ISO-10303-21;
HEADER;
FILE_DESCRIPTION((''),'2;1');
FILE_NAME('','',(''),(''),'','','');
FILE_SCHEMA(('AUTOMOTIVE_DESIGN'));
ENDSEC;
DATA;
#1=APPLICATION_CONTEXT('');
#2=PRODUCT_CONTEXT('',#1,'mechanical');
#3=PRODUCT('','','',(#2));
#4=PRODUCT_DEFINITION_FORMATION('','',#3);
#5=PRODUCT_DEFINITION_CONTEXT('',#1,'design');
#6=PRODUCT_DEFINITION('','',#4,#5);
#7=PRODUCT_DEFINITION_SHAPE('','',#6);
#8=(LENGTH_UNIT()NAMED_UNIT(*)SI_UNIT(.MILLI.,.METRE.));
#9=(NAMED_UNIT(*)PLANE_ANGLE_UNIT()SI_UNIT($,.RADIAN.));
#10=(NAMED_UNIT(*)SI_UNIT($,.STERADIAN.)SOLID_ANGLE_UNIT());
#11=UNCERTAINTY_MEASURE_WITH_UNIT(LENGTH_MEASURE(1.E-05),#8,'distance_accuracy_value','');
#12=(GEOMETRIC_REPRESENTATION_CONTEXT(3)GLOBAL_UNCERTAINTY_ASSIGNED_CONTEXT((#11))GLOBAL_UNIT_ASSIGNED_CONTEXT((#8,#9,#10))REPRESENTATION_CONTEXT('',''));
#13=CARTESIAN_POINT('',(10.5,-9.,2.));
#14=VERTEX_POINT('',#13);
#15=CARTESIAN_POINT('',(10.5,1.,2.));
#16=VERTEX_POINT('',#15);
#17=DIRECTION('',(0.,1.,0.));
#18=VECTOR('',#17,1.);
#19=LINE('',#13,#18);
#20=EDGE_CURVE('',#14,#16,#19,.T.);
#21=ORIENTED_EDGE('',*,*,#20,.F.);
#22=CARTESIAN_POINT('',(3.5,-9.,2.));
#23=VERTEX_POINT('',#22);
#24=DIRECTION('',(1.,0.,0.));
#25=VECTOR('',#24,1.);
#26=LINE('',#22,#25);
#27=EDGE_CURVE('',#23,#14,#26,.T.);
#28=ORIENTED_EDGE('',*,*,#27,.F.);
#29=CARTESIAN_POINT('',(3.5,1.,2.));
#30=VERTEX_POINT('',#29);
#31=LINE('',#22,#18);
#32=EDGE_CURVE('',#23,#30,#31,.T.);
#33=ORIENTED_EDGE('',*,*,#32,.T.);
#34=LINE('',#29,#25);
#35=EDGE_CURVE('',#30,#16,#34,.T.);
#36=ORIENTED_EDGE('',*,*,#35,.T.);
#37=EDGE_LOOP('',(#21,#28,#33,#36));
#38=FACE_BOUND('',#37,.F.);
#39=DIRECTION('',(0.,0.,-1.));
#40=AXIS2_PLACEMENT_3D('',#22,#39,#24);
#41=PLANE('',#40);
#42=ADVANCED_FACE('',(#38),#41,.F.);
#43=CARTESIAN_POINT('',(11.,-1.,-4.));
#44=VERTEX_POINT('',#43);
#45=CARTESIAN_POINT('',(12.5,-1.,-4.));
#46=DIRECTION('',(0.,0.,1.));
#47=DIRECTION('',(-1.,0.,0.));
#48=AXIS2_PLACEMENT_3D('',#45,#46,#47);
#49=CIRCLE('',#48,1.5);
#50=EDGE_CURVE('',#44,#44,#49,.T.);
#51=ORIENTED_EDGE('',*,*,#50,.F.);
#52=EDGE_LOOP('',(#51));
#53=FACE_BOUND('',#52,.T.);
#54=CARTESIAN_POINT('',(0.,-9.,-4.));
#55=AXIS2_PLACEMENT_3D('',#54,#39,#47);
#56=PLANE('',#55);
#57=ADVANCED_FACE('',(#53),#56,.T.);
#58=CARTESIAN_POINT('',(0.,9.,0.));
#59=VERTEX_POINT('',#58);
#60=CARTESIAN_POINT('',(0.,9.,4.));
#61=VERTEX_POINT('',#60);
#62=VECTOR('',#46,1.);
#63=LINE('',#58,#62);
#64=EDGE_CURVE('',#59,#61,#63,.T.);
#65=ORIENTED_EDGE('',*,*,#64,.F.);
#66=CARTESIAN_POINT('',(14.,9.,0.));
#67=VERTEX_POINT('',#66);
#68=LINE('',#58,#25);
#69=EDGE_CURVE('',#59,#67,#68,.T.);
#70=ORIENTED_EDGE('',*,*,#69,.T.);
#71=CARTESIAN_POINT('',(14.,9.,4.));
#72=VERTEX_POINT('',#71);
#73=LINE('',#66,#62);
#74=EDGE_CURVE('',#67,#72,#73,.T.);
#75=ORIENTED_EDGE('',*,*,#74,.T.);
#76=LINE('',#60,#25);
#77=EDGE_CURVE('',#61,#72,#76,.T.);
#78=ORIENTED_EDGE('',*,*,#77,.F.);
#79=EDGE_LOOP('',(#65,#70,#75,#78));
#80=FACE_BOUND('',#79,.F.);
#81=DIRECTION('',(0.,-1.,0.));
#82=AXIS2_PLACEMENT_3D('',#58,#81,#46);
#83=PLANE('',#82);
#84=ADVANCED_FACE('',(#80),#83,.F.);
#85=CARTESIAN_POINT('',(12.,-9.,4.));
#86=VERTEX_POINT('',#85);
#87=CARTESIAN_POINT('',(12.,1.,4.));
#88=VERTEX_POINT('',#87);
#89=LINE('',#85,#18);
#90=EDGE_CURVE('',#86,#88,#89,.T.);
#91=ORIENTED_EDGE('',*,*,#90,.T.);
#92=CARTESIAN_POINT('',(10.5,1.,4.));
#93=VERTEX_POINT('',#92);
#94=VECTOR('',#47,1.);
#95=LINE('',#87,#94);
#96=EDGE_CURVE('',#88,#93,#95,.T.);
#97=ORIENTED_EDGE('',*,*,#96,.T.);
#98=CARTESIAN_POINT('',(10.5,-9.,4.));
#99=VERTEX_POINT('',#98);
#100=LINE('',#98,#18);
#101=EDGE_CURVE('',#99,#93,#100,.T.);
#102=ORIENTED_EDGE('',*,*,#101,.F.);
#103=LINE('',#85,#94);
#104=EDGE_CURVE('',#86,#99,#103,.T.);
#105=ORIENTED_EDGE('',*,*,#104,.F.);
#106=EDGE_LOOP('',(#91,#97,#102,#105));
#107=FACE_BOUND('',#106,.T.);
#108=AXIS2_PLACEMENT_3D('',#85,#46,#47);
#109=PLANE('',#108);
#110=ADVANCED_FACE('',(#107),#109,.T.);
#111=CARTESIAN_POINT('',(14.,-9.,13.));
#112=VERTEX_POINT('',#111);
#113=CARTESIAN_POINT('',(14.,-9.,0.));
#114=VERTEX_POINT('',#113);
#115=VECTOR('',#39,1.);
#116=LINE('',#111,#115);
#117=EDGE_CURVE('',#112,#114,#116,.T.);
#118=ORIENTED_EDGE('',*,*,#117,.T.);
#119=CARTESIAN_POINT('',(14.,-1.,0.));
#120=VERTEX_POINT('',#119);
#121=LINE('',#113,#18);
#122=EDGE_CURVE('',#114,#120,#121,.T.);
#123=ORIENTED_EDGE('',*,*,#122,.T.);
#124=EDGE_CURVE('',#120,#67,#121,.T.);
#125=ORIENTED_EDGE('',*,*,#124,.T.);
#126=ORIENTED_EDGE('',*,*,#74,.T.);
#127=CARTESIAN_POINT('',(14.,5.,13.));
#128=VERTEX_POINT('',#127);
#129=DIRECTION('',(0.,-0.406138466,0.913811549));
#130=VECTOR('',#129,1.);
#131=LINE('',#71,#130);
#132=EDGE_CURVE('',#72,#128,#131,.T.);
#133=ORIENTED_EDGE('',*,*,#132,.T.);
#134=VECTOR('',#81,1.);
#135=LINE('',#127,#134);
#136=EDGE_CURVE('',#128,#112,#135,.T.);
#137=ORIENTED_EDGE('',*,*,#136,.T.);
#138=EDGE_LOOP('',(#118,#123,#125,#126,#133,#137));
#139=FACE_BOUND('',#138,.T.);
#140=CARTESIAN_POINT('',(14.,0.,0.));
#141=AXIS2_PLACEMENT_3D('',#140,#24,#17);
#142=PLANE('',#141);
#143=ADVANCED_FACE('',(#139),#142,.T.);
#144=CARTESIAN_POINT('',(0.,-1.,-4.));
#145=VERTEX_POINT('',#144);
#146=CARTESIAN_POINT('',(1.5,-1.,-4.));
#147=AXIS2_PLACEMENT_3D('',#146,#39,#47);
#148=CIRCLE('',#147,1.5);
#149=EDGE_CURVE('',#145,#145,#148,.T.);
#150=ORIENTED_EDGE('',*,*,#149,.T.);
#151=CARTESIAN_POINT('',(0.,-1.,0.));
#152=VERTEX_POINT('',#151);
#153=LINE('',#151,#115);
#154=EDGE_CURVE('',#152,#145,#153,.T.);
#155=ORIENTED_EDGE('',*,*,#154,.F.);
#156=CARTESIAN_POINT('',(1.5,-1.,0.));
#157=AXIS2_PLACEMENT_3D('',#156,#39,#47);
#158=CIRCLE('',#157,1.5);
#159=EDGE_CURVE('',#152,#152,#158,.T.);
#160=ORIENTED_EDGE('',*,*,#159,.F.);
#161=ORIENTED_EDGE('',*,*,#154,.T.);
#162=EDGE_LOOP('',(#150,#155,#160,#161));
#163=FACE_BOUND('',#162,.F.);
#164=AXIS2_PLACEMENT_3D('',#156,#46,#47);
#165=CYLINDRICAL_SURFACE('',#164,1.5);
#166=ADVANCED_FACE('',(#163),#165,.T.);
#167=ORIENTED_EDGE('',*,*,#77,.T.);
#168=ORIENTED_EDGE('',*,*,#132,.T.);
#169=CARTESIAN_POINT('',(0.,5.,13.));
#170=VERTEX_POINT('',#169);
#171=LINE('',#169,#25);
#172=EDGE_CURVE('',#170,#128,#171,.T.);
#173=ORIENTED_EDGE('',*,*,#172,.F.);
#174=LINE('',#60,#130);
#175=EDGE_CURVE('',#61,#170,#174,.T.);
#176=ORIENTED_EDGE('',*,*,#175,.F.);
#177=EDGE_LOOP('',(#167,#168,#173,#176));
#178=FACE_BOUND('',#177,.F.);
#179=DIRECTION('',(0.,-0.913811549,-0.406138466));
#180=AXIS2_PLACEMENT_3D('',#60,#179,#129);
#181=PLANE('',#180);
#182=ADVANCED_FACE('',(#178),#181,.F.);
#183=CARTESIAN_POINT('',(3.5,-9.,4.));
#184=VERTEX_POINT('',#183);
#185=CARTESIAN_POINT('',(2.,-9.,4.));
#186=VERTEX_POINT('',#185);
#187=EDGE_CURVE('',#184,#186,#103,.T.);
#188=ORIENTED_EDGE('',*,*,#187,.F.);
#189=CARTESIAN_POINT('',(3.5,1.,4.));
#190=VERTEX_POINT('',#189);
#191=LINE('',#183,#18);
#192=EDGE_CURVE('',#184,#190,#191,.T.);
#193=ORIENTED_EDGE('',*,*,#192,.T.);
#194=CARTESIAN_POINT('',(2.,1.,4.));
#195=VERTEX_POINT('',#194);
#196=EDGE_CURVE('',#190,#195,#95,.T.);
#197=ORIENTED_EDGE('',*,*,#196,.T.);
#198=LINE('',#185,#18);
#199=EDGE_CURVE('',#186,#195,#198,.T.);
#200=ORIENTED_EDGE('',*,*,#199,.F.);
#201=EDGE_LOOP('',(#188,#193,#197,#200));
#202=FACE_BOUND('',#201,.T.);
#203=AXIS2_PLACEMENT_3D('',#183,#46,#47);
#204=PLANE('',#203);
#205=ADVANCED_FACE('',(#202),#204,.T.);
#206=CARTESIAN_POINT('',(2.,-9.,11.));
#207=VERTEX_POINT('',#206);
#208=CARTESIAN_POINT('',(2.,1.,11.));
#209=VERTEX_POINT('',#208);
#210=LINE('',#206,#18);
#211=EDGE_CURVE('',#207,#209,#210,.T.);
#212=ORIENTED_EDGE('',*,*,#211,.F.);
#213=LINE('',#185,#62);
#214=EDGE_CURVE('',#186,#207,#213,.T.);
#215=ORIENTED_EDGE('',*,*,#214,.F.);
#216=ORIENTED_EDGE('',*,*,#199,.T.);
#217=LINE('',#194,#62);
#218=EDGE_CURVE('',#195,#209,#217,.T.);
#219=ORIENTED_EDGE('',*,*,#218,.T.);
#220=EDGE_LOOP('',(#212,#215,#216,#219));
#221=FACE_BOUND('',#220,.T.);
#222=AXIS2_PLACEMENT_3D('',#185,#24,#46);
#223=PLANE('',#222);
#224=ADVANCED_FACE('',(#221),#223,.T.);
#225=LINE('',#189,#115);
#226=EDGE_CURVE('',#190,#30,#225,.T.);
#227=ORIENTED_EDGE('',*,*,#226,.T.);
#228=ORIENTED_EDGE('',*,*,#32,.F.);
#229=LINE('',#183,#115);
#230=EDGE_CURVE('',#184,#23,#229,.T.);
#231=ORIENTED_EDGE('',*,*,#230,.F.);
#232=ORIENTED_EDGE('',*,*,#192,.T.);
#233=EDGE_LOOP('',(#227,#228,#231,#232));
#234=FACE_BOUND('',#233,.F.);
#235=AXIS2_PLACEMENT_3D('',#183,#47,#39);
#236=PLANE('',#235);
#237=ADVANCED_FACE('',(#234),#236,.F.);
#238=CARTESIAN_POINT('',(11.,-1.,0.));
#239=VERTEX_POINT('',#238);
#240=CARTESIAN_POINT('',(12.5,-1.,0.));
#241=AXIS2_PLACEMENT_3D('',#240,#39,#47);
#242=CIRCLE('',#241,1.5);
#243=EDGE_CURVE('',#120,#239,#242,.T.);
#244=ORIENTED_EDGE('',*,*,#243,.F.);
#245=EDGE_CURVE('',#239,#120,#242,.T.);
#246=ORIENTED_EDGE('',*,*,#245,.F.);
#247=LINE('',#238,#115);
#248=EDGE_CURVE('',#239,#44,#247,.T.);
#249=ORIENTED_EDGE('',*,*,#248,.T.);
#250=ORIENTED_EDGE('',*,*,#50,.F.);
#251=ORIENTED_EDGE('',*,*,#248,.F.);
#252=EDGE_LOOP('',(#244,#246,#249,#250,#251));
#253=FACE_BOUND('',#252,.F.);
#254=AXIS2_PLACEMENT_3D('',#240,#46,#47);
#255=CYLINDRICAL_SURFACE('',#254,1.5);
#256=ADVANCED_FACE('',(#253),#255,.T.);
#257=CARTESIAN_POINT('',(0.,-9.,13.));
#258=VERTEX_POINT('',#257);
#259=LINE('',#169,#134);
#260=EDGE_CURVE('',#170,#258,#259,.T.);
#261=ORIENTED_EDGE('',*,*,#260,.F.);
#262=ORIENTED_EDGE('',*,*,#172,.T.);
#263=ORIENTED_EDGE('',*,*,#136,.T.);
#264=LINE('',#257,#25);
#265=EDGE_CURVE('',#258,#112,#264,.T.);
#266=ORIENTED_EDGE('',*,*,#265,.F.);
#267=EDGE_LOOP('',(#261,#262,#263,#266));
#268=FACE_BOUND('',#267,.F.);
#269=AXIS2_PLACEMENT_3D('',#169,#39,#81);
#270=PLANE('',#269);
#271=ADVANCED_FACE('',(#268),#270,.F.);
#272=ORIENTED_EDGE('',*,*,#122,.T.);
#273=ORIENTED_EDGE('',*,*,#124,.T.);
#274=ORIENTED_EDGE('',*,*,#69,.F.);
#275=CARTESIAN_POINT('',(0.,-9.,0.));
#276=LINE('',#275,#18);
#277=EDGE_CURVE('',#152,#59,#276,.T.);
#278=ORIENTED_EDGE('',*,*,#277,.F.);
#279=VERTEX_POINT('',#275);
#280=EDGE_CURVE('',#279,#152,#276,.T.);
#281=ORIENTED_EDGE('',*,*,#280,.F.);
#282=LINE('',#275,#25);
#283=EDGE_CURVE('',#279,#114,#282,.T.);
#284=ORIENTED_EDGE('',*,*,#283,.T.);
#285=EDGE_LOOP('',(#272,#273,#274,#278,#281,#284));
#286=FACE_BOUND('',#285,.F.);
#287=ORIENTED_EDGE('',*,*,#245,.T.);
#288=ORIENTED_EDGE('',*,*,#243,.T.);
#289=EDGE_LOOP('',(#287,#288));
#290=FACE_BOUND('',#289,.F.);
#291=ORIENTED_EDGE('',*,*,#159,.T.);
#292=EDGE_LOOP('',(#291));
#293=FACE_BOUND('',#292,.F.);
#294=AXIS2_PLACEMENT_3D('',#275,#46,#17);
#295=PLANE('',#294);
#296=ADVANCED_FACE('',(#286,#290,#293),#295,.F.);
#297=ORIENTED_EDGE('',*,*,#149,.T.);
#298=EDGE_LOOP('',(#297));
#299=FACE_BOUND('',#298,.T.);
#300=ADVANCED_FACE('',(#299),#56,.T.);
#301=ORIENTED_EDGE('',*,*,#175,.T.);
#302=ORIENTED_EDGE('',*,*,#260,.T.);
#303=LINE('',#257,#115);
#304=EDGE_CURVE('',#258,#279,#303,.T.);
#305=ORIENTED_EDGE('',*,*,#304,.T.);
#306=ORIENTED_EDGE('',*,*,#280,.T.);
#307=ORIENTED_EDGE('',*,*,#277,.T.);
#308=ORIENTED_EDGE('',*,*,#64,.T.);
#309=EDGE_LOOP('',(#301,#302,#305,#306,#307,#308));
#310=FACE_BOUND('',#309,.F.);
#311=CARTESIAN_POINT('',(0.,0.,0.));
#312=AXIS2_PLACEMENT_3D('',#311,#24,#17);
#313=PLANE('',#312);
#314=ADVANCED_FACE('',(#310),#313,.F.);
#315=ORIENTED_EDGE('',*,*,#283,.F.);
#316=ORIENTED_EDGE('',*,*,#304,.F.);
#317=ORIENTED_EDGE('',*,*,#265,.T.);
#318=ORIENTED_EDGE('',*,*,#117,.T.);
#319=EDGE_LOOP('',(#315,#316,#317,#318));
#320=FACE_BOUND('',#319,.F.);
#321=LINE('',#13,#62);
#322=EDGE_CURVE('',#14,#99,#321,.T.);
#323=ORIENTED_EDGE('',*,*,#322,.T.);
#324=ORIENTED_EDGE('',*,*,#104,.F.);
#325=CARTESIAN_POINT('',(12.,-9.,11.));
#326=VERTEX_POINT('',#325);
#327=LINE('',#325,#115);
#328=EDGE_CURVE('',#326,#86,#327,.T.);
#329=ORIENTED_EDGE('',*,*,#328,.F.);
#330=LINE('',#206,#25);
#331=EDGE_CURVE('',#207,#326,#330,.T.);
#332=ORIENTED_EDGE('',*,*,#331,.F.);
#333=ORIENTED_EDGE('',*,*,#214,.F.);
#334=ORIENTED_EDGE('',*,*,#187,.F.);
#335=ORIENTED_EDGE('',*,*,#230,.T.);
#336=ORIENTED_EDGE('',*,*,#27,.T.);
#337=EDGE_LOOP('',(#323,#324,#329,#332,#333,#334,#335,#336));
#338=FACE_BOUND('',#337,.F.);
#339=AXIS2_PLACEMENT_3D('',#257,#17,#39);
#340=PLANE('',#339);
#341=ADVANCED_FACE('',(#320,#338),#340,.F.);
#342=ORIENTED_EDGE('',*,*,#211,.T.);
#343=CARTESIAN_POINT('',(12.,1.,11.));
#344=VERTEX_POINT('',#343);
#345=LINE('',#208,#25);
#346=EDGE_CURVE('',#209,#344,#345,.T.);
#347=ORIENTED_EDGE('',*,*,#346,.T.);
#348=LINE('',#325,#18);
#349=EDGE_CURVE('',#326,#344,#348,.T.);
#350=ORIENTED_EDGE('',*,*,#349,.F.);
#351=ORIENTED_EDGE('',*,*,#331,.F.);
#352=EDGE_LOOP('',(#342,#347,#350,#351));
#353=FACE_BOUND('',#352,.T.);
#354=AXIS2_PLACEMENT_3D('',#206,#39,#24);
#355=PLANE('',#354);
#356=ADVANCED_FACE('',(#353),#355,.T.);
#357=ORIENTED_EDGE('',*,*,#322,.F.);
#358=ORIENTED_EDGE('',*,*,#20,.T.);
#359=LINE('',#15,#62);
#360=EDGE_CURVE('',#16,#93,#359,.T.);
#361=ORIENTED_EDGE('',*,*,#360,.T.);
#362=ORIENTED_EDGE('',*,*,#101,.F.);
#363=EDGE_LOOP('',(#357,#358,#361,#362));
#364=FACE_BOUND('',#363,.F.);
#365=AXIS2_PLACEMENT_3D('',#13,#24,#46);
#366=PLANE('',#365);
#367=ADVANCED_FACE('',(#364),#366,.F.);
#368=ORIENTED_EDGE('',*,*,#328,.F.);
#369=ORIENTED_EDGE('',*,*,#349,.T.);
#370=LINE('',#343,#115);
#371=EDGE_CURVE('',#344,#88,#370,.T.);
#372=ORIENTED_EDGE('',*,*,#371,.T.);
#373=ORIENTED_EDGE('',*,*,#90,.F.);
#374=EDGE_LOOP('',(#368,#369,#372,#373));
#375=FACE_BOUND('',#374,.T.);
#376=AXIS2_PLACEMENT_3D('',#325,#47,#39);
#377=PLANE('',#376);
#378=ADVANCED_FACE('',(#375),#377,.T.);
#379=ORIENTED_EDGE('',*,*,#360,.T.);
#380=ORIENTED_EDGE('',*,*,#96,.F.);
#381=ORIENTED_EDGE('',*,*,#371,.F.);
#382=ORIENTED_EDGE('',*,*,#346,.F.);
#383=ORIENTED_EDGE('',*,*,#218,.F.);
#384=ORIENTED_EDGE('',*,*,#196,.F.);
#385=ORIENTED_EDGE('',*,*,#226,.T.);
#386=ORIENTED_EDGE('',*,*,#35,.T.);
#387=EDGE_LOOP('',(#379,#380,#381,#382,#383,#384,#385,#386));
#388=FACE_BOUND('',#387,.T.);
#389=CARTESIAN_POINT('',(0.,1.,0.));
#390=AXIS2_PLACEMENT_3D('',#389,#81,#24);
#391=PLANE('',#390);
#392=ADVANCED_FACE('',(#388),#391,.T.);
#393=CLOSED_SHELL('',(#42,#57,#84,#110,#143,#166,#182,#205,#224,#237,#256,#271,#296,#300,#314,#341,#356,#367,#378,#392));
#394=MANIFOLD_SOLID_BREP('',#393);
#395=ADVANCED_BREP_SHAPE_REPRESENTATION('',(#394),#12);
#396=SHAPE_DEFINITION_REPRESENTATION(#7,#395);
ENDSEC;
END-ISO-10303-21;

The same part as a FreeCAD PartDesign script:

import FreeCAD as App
import Part
import Sketcher

V = App.Vector
Q = App.Units.Quantity


def add_polygon(sketch, points):
    """Adds a closed chain of lines whose ends are joined by coincident constraints."""
    first, n = sketch.GeometryCount, len(points)
    for a, b in zip(points, points[1:] + points[:1]):
        sketch.addGeometry(Part.LineSegment(App.Vector(*a, 0), App.Vector(*b, 0)), False)
    for i in range(n):
        sketch.addConstraint(Sketcher.Constraint("Coincident", first + i, 2, first + (i + 1) % n, 1))

doc = App.newDocument("Part")
params = doc.addObject("Spreadsheet::Sheet", "Params")
for row, (alias, value) in enumerate([
    ("sketch1_width", "14 mm"),
    ("sketch1_width2", "18 mm"),
    ("sketch1_height", "13 mm"),
    ("sketch1_height2", "4 mm"),
    ("pad1_length", "14 mm"),
    ("sketch2_width", "10 mm"),
    ("sketch2_width2", "7 mm"),
    ("sketch2_height", "2 mm"),
    ("pocket1_length", "10 mm"),
    ("sketch3_diameter", "3 mm"),
    ("pad2_length", "4 mm"),
], start=1):
    params.set(f"A{row}", alias)
    params.set(f"B{row}", "=" + value)
    params.setAlias(f"B{row}", alias)

body = doc.addObject("PartDesign::Body", "Body")

sketch1 = body.newObject("Sketcher::SketchObject", "Sketch")
sketch1.AttachmentSupport = (doc.getObject("YZ_Plane"), [""])
sketch1.MapMode = "FlatFace"
add_polygon(sketch1, [(5, 13), (-9, 13), (-9, 0), (9, 0), (9, 4)])
sketch1.addConstraint(Sketcher.Constraint("Horizontal", 0))
sketch1.addConstraint(Sketcher.Constraint("Vertical", 1))
sketch1.addConstraint(Sketcher.Constraint("Horizontal", 2))
sketch1.addConstraint(Sketcher.Constraint("Vertical", 3))
sketch1.addConstraint(Sketcher.Constraint("Symmetric", 1, 2, 2, 2, -1, 1))
sketch1.addConstraint(Sketcher.Constraint("DistanceX", 0, 2, 0, 1, Q("14 mm")))
sketch1.addConstraint(Sketcher.Constraint("DistanceX", 2, 1, 2, 2, Q("18 mm")))
sketch1.addConstraint(Sketcher.Constraint("DistanceY", 1, 2, 1, 1, Q("13 mm")))
sketch1.addConstraint(Sketcher.Constraint("DistanceY", 3, 1, 3, 2, Q("4 mm")))
sketch1.setExpression("Constraints[10]", "Params.sketch1_width")
sketch1.setExpression("Constraints[11]", "Params.sketch1_width2")
sketch1.setExpression("Constraints[12]", "Params.sketch1_height")
sketch1.setExpression("Constraints[13]", "Params.sketch1_height2")
pad1 = body.newObject("PartDesign::Pad", "Pad")
pad1.Profile = sketch1
pad1.setExpression("Length", "Params.pad1_length")

sketch2 = body.newObject("Sketcher::SketchObject", "Sketch001")
sketch2.AttachmentSupport = (doc.getObject("XZ_Plane"), [""])
sketch2.MapMode = "FlatFace"
sketch2.AttachmentOffset = App.Placement(V(0, 0, 9), App.Rotation())
add_polygon(sketch2, [(12, 11), (2, 11), (2, 4), (3.5, 4), (3.5, 2), (10.5, 2), (10.5, 4), (12, 4)])
sketch2.addConstraint(Sketcher.Constraint("Horizontal", 0))
sketch2.addConstraint(Sketcher.Constraint("Vertical", 1))
sketch2.addConstraint(Sketcher.Constraint("Horizontal", 2))
sketch2.addConstraint(Sketcher.Constraint("Vertical", 3))
sketch2.addConstraint(Sketcher.Constraint("Horizontal", 4))
sketch2.addConstraint(Sketcher.Constraint("Vertical", 5))
sketch2.addConstraint(Sketcher.Constraint("Horizontal", 6))
sketch2.addConstraint(Sketcher.Constraint("Vertical", 7))
sketch2.addConstraint(Sketcher.Constraint("Horizontal", 2, 2, 5, 2))
sketch2.addConstraint(Sketcher.Constraint("Equal", 2, 6))
sketch2.addConstraint(Sketcher.Constraint("Equal", 4, 1))
sketch2.addConstraint(Sketcher.Constraint("DistanceX", 0, 2, 0, 1, Q("10 mm")))
sketch2.addConstraint(Sketcher.Constraint("DistanceX", 4, 1, 4, 2, Q("7 mm")))
sketch2.addConstraint(Sketcher.Constraint("DistanceY", 3, 2, 3, 1, Q("2 mm")))
sketch2.addConstraint(Sketcher.Constraint("DistanceX", -1, 1, 0, 2, Q("2 mm")))
sketch2.addConstraint(Sketcher.Constraint("DistanceY", -1, 1, 3, 2, Q("2 mm")))
sketch2.setExpression("Constraints[19]", "Params.sketch2_width")
sketch2.setExpression("Constraints[20]", "Params.sketch2_width2")
sketch2.setExpression("Constraints[21]", "Params.sketch2_height")
pocket1 = body.newObject("PartDesign::Pocket", "Pocket")
pocket1.Profile = sketch2
pocket1.setExpression("Length", "Params.pocket1_length")

sketch3 = body.newObject("Sketcher::SketchObject", "Sketch002")
sketch3.AttachmentSupport = (doc.getObject("XY_Plane"), [""])
sketch3.MapMode = "FlatFace"
sketch3.addGeometry(Part.Circle(V(1.5, -1, 0), V(0, 0, 1), 1.5), False)
sketch3.addGeometry(Part.Circle(V(12.5, -1, 0), V(0, 0, 1), 1.5), False)
sketch3.addConstraint(Sketcher.Constraint("Equal", 0, 1))
sketch3.addConstraint(Sketcher.Constraint("Horizontal", 0, 3, 1, 3))
sketch3.addConstraint(Sketcher.Constraint("Diameter", 0, Q("3 mm")))
sketch3.addConstraint(Sketcher.Constraint("DistanceX", -1, 1, 0, 3, Q("1.5 mm")))
sketch3.addConstraint(Sketcher.Constraint("DistanceY", 0, 3, -1, 1, Q("1 mm")))
sketch3.addConstraint(Sketcher.Constraint("DistanceX", 0, 3, 1, 3, Q("11 mm")))
sketch3.setExpression("Constraints[2]", "Params.sketch3_diameter")
pad2 = body.newObject("PartDesign::Pad", "Pad001")
pad2.Profile = sketch3
pad2.setExpression("Length", "Params.pad2_length")
pad2.Reversed = True

doc.recompute()
